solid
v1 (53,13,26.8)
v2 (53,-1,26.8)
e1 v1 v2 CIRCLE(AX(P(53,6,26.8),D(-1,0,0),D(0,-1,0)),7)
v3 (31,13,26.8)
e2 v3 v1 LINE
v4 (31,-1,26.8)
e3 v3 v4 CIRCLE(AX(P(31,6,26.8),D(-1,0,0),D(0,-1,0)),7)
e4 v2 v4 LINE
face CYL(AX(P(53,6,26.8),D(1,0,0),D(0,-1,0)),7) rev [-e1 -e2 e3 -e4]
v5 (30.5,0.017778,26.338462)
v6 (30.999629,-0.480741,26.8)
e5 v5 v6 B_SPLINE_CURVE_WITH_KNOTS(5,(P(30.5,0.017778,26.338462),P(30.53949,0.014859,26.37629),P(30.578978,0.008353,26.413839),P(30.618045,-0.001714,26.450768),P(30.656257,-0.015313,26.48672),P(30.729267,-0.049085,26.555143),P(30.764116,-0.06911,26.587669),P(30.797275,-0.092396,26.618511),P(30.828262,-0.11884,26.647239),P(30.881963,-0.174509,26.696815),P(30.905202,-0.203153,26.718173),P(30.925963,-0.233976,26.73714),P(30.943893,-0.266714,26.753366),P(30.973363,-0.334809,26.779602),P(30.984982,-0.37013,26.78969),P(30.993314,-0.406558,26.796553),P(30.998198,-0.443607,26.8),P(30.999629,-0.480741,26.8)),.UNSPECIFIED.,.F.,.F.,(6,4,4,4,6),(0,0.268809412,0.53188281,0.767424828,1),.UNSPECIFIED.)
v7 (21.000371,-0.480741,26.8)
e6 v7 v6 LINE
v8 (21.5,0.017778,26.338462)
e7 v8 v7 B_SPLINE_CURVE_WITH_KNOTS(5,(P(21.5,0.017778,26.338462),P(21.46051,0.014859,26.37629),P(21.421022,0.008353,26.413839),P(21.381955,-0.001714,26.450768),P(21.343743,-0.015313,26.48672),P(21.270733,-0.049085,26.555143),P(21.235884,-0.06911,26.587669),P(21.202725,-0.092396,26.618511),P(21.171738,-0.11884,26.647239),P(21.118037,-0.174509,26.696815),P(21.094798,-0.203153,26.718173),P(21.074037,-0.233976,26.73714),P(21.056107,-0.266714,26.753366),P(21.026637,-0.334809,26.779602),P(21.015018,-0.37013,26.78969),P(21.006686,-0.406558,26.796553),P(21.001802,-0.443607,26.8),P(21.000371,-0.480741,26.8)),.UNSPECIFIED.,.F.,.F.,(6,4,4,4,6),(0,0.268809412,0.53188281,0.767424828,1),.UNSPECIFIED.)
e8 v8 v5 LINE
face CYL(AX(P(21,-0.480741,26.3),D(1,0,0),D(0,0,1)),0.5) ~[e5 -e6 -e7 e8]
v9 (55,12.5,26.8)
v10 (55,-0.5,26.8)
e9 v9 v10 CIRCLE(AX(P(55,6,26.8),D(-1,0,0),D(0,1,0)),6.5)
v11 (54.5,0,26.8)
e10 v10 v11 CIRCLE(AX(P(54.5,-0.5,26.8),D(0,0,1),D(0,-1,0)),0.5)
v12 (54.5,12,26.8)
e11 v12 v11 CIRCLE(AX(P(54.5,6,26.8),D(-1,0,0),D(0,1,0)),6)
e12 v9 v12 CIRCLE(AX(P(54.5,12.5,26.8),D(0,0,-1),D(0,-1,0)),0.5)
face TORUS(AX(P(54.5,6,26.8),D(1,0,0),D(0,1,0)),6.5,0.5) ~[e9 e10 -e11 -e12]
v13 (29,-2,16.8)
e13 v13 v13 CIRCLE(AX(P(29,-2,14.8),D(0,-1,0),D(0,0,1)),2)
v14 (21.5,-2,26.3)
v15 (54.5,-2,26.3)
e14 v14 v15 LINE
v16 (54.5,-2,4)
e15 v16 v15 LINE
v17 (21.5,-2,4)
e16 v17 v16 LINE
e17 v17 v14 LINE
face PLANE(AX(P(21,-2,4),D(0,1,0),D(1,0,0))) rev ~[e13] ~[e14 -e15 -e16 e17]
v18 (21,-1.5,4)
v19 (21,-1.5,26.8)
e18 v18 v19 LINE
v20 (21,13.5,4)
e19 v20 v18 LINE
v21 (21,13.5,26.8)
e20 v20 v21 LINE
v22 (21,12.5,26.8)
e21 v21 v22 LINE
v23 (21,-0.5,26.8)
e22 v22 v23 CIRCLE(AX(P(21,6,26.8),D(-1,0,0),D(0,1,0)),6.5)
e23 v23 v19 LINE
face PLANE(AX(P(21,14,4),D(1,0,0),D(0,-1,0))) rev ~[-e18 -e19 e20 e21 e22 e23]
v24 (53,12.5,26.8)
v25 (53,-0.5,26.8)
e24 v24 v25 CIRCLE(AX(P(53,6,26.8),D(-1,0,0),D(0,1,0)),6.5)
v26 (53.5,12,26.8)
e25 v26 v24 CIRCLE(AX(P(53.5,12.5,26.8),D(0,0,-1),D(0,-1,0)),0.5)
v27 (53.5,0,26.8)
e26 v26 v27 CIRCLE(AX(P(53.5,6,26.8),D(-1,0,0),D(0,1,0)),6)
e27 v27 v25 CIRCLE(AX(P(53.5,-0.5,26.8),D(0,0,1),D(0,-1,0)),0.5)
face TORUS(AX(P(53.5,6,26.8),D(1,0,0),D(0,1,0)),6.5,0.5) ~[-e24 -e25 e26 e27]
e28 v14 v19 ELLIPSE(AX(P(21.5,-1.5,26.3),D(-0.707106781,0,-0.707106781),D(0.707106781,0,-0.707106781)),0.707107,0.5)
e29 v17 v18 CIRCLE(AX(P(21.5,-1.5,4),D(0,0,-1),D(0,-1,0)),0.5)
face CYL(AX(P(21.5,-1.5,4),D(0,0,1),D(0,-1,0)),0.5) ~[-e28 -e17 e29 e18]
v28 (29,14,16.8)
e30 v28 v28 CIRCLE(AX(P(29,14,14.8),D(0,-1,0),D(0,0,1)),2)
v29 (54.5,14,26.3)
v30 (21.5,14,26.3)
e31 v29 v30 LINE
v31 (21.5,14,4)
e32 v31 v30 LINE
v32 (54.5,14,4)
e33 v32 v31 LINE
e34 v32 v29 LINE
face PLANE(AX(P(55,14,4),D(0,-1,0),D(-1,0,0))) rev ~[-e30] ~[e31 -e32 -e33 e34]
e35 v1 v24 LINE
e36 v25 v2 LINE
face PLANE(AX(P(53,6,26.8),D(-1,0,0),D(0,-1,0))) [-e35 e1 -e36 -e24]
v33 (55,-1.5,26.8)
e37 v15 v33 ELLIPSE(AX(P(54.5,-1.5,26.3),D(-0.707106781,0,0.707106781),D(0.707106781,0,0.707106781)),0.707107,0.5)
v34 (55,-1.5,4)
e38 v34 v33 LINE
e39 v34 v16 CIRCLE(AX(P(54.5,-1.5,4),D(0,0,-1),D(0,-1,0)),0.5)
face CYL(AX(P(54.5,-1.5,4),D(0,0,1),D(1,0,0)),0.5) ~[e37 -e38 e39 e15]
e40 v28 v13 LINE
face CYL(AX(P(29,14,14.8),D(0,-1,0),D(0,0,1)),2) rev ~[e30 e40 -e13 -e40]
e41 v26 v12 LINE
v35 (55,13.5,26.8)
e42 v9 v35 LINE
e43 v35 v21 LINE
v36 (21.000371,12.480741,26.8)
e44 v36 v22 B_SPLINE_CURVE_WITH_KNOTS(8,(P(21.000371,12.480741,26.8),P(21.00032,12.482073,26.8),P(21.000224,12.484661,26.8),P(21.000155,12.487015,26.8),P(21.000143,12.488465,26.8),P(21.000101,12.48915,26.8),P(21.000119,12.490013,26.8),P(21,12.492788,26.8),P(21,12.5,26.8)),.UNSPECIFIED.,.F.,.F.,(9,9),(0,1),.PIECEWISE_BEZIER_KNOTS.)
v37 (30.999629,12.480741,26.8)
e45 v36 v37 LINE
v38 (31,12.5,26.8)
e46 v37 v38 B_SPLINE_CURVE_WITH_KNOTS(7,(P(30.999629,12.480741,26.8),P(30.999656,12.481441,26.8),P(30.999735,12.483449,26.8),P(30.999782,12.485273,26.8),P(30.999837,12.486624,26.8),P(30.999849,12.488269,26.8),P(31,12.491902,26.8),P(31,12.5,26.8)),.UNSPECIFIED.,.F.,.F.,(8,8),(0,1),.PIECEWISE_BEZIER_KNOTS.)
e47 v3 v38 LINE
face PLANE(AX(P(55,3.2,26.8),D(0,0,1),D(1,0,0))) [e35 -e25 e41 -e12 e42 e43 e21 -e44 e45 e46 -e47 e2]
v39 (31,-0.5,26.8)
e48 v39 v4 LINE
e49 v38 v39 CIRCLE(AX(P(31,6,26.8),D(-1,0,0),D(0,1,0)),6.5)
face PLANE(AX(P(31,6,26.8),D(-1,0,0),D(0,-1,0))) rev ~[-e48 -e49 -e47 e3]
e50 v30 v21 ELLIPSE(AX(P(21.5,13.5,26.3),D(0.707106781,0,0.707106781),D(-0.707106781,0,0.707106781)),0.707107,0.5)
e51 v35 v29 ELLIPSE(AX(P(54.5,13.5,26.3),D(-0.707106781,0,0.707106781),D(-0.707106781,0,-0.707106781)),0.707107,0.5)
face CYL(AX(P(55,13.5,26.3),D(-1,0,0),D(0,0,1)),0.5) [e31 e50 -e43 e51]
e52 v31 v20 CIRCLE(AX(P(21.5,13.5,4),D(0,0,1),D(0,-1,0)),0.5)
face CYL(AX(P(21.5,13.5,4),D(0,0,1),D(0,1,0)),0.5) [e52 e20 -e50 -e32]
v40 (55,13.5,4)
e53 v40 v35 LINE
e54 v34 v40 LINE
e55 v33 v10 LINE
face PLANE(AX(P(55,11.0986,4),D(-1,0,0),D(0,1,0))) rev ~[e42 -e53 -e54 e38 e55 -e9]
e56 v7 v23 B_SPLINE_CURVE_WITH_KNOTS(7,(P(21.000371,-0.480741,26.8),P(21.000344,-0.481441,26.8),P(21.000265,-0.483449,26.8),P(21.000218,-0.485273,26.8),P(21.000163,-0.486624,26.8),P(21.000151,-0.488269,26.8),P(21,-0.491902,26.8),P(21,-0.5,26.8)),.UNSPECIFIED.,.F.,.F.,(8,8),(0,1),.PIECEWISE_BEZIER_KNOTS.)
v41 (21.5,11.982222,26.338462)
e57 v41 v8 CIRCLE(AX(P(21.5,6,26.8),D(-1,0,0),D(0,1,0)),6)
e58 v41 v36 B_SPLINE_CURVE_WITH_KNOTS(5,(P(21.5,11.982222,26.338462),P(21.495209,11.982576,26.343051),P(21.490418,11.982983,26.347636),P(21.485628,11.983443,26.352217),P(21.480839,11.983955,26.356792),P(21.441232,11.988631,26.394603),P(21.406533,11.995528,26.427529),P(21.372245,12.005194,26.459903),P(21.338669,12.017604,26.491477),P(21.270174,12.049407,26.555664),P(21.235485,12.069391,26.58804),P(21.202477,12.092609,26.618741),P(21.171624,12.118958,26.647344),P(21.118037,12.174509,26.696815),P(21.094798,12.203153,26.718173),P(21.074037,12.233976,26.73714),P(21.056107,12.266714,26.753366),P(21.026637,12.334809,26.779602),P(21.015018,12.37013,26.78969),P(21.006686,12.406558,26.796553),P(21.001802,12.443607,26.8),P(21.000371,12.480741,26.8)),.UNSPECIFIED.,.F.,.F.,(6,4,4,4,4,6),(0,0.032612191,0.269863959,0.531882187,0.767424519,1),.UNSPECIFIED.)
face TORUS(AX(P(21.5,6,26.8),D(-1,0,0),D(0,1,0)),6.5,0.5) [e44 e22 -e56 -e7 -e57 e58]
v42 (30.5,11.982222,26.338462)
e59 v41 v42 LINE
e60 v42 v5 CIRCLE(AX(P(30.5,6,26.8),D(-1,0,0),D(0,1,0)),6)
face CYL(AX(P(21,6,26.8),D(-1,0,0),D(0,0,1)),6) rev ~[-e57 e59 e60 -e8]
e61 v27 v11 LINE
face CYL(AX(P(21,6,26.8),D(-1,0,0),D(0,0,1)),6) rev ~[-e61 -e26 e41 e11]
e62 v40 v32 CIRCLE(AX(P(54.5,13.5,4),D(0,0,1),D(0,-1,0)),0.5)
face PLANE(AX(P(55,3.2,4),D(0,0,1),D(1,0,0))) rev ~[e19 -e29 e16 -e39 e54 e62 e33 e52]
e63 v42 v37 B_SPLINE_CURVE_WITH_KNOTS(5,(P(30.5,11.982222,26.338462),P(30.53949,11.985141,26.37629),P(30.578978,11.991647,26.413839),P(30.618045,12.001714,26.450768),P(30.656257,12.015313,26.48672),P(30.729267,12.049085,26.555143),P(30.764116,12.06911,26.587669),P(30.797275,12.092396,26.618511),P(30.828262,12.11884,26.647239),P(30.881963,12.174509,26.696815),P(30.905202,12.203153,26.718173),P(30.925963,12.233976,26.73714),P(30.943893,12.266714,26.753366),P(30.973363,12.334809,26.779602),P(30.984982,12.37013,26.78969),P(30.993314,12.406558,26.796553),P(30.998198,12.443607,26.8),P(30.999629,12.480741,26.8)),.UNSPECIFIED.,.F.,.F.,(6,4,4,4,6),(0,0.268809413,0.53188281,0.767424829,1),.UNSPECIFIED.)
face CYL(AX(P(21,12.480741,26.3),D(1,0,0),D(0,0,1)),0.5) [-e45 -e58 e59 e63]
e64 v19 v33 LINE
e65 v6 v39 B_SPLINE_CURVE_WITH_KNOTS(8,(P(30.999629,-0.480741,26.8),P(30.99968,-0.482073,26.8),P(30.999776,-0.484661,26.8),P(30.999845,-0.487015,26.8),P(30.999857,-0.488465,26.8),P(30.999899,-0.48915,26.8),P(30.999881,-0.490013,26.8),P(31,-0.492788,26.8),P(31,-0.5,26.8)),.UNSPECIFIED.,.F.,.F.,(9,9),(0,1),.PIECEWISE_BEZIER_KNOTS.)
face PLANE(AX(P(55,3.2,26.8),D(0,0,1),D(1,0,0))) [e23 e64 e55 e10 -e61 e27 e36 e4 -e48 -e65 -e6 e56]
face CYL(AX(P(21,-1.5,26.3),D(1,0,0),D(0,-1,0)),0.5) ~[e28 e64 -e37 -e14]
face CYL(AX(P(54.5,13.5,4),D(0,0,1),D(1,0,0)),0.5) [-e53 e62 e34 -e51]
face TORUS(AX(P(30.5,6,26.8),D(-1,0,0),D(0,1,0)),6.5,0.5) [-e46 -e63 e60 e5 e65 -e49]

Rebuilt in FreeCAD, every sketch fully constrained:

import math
import FreeCAD as App
import Part
import Sketcher
from FreeCAD import Vector


def edges_at(feature, points):
    """Names of the edges that pass closest to the given points."""
    edges = feature.Shape.Edges
    near = lambda p: min(range(len(edges)), key=lambda i: edges[i].distToShape(Part.Vertex(*p))[0])
    return sorted({f"Edge{near(p) + 1}" for p in points})

doc = App.newDocument("Part")
body = doc.addObject("PartDesign::Body", "Body")

sketch1 = body.newObject("Sketcher::SketchObject", "Sketch")
sketch1.AttachmentSupport = (doc.getObject("XY_Plane"), [""])
sketch1.MapMode = "FlatFace"
sketch1.AttachmentOffset = App.Placement(Vector(0, 0, 4), App.Rotation())
sketch1.addGeometry(Part.LineSegment(Vector(55, -2, 0), Vector(55, 14, 0)), False)
sketch1.addGeometry(Part.LineSegment(Vector(55, 14, 0), Vector(21, 14, 0)), False)
sketch1.addGeometry(Part.LineSegment(Vector(21, 14, 0), Vector(21, -2, 0)), False)
sketch1.addGeometry(Part.LineSegment(Vector(21, -2, 0), Vector(55, -2, 0)), False)
sketch1.addConstraint(Sketcher.Constraint("Coincident", 0, 2, 1, 1))
sketch1.addConstraint(Sketcher.Constraint("Coincident", 1, 2, 2, 1))
sketch1.addConstraint(Sketcher.Constraint("Coincident", 2, 2, 3, 1))
sketch1.addConstraint(Sketcher.Constraint("Coincident", 3, 2, 0, 1))
sketch1.addConstraint(Sketcher.Constraint("Vertical", 0))
sketch1.addConstraint(Sketcher.Constraint("Horizontal", 1))
sketch1.addConstraint(Sketcher.Constraint("Vertical", 2))
sketch1.addConstraint(Sketcher.Constraint("Horizontal", 3))
sketch1.addConstraint(Sketcher.Constraint("DistanceX", 1, 2, 1, 1, 34.0))
sketch1.addConstraint(Sketcher.Constraint("DistanceY", 0, 1, 0, 2, 16.0))
sketch1.addConstraint(Sketcher.Constraint("DistanceX", -1, 1, 0, 2, 55.0))
sketch1.addConstraint(Sketcher.Constraint("DistanceY", -1, 1, 0, 2, 14.0))
pad1 = body.newObject("PartDesign::Pad", "Pad")
pad1.Profile = sketch1
pad1.Length = 22.8

sketch2 = body.newObject("Sketcher::SketchObject", "Sketch001")
sketch2.AttachmentSupport = (doc.getObject("YZ_Plane"), [""])
sketch2.MapMode = "FlatFace"
sketch2.AttachmentOffset = App.Placement(Vector(0, 0, 21), App.Rotation())
sketch2.addGeometry(Part.LineSegment(Vector(0, 27, 0), Vector(12, 27, 0)), False)
sketch2.addGeometry(Part.ArcOfCircle(Part.Circle(Vector(6, 27, 0), Vector(0, 0, 1), 6), math.radians(180), math.radians(360)), False)
sketch2.addConstraint(Sketcher.Constraint("Coincident", 0, 1, 1, 1))
sketch2.addConstraint(Sketcher.Constraint("Coincident", 1, 2, 0, 2))
sketch2.addConstraint(Sketcher.Constraint("Horizontal", 0))
sketch2.addConstraint(Sketcher.Constraint("PointOnObject", 0, 1, -2))
sketch2.addConstraint(Sketcher.Constraint("Horizontal", 1, 3, 0, 1))
sketch2.addConstraint(Sketcher.Constraint("Radius", 1, 6.0))
sketch2.addConstraint(Sketcher.Constraint("DistanceY", -1, 1, 1, 3, 26.8))
pocket1 = body.newObject("PartDesign::Pocket", "Pocket")
pocket1.Profile = sketch2
pocket1.Type = "ThroughAll"
pocket1.Reversed = True

sketch3 = body.newObject("Sketcher::SketchObject", "Sketch002")
sketch3.AttachmentSupport = (doc.getObject("YZ_Plane"), [""])
sketch3.MapMode = "FlatFace"
sketch3.AttachmentOffset = App.Placement(Vector(0, 0, 53), App.Rotation())
sketch3.addGeometry(Part.Circle(Vector(6, 27, 0), Vector(0, 0, 1), 7), False)
sketch3.addConstraint(Sketcher.Constraint("Diameter", 0, 14.0))
sketch3.addConstraint(Sketcher.Constraint("DistanceX", -1, 1, 0, 3, 6.0))
sketch3.addConstraint(Sketcher.Constraint("DistanceY", -1, 1, 0, 3, 26.8))
pocket2 = body.newObject("PartDesign::Pocket", "Pocket001")
pocket2.Profile = sketch3
pocket2.Length = 22

sketch4 = body.newObject("Sketcher::SketchObject", "Sketch003")
sketch4.AttachmentSupport = (doc.getObject("XZ_Plane"), [""])
sketch4.MapMode = "FlatFace"
sketch4.AttachmentOffset = App.Placement(Vector(0, 0, -14), App.Rotation())
sketch4.addGeometry(Part.Circle(Vector(29, 14.8, 0), Vector(0, 0, 1), 2), False)
sketch4.addConstraint(Sketcher.Constraint("Diameter", 0, 4.0))
sketch4.addConstraint(Sketcher.Constraint("DistanceX", -1, 1, 0, 3, 29.0))
sketch4.addConstraint(Sketcher.Constraint("DistanceY", -1, 1, 0, 3, 14.8))
doc.recompute()
hole = body.newObject("PartDesign::Hole", "Hole")
hole.Profile = sketch4
hole.ThreadType = "None"
hole.Diameter = 4
hole.DepthType = "ThroughAll"
hole.Reversed = True
doc.recompute()

fillet = body.newObject("PartDesign::Fillet", "Fillet")
fillet.Base = (hole, edges_at(hole, [
    (21, 14, 15.4),
    (38, 14, 26.8),
    (38, -2, 26.8),
    (21, -2, 15.4),
    (55, 14, 15.4),
    (55, -2, 15.4),
    (55, 6, 20.8),
    (21, 6, 20.8),
    (26, 0, 26.8),
    (26, 12, 26.8),
    (53, 6, 20.8),
    (31, 6, 20.8),
]))
fillet.Radius = 0.5

doc.recompute()
